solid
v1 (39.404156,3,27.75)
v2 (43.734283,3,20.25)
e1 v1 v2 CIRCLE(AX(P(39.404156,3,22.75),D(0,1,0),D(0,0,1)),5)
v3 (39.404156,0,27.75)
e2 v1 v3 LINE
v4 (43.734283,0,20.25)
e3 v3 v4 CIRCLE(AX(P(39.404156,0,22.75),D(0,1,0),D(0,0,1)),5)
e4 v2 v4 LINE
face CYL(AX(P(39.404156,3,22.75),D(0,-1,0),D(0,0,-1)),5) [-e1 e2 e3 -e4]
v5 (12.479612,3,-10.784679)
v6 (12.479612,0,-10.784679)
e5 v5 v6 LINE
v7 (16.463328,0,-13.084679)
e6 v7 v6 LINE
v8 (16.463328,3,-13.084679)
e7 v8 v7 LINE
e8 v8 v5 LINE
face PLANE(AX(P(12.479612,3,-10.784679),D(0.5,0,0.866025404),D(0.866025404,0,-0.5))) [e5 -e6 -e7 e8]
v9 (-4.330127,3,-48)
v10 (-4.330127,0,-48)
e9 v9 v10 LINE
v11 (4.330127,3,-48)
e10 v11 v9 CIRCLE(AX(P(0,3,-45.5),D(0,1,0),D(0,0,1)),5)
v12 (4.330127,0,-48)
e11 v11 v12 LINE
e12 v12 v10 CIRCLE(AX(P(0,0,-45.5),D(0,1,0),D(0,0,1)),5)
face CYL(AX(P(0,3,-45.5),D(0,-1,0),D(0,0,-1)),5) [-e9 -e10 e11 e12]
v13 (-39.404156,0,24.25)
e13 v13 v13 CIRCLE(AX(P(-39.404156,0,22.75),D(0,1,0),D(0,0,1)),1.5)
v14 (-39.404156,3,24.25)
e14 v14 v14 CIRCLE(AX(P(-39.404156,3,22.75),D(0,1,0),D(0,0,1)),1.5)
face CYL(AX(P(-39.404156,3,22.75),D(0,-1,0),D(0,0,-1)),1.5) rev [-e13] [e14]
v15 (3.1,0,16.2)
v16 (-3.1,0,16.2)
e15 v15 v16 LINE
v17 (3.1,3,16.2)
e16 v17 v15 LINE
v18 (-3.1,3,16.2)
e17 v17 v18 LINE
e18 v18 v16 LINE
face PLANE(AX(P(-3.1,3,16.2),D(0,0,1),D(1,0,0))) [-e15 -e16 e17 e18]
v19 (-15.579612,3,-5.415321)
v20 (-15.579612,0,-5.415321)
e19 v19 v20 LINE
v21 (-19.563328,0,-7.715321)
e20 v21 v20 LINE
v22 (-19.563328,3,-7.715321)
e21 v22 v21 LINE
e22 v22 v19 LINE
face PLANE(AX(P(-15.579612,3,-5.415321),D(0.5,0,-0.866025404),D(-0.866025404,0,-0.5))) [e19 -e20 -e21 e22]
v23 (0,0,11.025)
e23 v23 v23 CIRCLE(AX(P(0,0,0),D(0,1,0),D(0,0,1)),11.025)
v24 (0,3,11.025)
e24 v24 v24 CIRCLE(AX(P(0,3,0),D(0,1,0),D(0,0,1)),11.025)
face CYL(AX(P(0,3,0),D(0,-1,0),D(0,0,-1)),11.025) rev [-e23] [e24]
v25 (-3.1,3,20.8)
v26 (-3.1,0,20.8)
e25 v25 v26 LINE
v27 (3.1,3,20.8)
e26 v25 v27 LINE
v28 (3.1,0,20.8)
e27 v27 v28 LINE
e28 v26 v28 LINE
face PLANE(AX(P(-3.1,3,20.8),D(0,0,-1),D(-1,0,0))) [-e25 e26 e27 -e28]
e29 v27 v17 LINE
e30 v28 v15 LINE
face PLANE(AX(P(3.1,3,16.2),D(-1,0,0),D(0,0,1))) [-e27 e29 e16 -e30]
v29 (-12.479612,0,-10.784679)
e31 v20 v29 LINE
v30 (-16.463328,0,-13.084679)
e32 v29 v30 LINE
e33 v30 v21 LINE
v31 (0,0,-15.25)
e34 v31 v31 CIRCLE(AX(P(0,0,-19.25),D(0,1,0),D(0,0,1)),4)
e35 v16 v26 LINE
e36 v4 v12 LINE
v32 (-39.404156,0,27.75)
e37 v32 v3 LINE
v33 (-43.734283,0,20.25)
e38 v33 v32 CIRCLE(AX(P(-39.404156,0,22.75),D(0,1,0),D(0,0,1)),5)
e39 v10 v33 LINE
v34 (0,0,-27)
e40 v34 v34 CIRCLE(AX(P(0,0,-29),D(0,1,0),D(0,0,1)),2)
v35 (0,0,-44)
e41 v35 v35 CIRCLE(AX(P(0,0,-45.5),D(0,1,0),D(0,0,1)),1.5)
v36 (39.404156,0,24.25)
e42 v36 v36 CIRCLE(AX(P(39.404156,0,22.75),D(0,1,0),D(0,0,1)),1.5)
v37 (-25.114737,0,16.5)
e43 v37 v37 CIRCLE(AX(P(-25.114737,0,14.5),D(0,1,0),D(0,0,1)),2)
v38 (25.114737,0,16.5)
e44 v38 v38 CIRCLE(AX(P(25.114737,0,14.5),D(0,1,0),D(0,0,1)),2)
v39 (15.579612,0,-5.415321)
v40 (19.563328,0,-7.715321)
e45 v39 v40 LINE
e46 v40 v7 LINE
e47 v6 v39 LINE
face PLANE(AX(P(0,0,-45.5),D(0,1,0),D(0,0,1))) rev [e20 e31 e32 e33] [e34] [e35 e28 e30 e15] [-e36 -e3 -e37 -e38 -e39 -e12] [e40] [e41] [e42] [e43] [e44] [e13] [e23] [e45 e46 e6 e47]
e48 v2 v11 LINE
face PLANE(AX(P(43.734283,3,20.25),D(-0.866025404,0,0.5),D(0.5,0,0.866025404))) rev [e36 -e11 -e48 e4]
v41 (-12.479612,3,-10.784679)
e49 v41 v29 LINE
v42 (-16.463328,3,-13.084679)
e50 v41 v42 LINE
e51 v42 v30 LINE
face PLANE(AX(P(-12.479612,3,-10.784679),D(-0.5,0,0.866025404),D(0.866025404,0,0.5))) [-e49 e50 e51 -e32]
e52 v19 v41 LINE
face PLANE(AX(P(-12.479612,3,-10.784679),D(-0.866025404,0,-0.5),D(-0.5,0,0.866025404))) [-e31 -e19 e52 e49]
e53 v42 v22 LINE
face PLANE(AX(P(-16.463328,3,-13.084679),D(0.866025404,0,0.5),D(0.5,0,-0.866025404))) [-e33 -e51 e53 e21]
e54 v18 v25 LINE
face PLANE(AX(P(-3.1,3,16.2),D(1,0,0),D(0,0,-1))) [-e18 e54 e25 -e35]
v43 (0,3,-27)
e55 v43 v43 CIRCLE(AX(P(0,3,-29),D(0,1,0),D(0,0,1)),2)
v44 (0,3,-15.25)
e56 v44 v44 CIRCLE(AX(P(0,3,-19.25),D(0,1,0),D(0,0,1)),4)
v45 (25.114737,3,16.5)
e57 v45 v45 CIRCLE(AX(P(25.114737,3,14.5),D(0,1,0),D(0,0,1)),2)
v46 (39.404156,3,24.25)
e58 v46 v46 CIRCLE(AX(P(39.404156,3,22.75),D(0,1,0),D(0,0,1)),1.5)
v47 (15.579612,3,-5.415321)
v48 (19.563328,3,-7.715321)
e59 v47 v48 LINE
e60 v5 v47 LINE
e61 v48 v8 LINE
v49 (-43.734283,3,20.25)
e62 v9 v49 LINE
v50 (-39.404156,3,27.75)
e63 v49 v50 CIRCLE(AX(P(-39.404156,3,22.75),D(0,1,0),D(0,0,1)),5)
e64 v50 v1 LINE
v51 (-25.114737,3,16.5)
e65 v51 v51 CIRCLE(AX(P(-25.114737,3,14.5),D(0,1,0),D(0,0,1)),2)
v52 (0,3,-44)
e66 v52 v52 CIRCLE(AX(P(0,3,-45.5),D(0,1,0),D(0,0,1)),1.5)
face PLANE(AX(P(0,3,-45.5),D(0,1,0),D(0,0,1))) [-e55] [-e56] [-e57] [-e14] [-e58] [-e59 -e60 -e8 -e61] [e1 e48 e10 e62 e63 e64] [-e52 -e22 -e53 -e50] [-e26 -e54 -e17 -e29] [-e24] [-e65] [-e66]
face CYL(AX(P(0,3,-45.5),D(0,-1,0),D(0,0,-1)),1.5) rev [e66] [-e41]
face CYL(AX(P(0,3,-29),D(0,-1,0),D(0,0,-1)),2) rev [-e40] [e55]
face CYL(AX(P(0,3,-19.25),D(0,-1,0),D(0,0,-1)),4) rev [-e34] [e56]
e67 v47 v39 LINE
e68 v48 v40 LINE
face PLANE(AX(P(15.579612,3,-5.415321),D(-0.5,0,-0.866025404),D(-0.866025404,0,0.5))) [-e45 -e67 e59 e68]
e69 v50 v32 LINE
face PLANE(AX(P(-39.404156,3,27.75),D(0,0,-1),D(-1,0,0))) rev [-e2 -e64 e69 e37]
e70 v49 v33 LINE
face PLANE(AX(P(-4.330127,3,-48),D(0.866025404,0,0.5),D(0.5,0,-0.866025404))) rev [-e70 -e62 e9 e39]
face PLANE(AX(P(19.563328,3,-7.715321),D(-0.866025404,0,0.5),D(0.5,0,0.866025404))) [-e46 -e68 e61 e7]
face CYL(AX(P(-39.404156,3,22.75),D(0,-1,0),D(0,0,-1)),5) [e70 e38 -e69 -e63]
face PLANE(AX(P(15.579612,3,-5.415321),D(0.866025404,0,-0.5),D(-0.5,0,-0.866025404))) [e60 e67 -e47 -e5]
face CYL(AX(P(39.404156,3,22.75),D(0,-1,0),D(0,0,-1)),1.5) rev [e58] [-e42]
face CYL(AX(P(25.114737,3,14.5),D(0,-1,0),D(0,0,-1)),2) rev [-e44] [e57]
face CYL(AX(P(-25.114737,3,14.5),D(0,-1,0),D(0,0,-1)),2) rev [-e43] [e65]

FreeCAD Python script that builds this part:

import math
import FreeCAD as App
import Part
import Sketcher
Q = App.Units.Quantity

doc = App.newDocument("Part")
body = doc.addObject("PartDesign::Body", "Body")

sketch1 = body.newObject("Sketcher::SketchObject", "Sketch")
sketch1.AttachmentSupport = (doc.getObject("XZ_Plane"), [""])
sketch1.MapMode = "FlatFace"
sketch1.addGeometry(Part.LineSegment(App.Vector(-4.3, -48, 0), App.Vector(-43.7, 20.2, 0)), False)
sketch1.addGeometry(Part.ArcOfCircle(Part.Circle(App.Vector(-39.4, 22.8, 0), App.Vector(0, 0, 1), 5), math.radians(90), math.radians(210)), False)
sketch1.addGeometry(Part.LineSegment(App.Vector(-39.4, 27.8, 0), App.Vector(39.4, 27.8, 0)), False)
sketch1.addGeometry(Part.ArcOfCircle(Part.Circle(App.Vector(39.4, 22.8, 0), App.Vector(0, 0, 1), 5), math.radians(-30), math.radians(90)), False)
sketch1.addGeometry(Part.LineSegment(App.Vector(43.7, 20.2, 0), App.Vector(4.3, -48, 0)), False)
sketch1.addGeometry(Part.ArcOfCircle(Part.Circle(App.Vector(0, -45.5, 0), App.Vector(0, 0, 1), 5), math.radians(-150), math.radians(-30)), False)
sketch1.addGeometry(Part.Circle(App.Vector(-39.4, 22.8, 0), App.Vector(0, 0, 1), 1.5), False)
sketch1.addGeometry(Part.Circle(App.Vector(-25.1, 14.5, 0), App.Vector(0, 0, 1), 2), False)
sketch1.addGeometry(Part.LineSegment(App.Vector(-16.5, -13.1, 0), App.Vector(-12.5, -10.8, 0)), False)
sketch1.addGeometry(Part.LineSegment(App.Vector(-12.5, -10.8, 0), App.Vector(-15.6, -5.4, 0)), False)
sketch1.addGeometry(Part.LineSegment(App.Vector(-15.6, -5.4, 0), App.Vector(-19.6, -7.7, 0)), False)
sketch1.addGeometry(Part.LineSegment(App.Vector(-19.6, -7.7, 0), App.Vector(-16.5, -13.1, 0)), False)
sketch1.addGeometry(Part.LineSegment(App.Vector(3.1, 20.8, 0), App.Vector(-3.1, 20.8, 0)), False)
sketch1.addGeometry(Part.LineSegment(App.Vector(-3.1, 20.8, 0), App.Vector(-3.1, 16.2, 0)), False)
sketch1.addGeometry(Part.LineSegment(App.Vector(-3.1, 16.2, 0), App.Vector(3.1, 16.2, 0)), False)
sketch1.addGeometry(Part.LineSegment(App.Vector(3.1, 16.2, 0), App.Vector(3.1, 20.8, 0)), False)
sketch1.addGeometry(Part.Circle(App.Vector(39.4, 22.8, 0), App.Vector(0, 0, 1), 1.5), False)
sketch1.addGeometry(Part.Circle(App.Vector(25.1, 14.5, 0), App.Vector(0, 0, 1), 2), False)
sketch1.addGeometry(Part.Circle(App.Vector(0, 0, 0), App.Vector(0, 0, 1), 11), False)
sketch1.addGeometry(Part.LineSegment(App.Vector(19.6, -7.7, 0), App.Vector(15.6, -5.4, 0)), False)
sketch1.addGeometry(Part.LineSegment(App.Vector(15.6, -5.4, 0), App.Vector(12.5, -10.8, 0)), False)
sketch1.addGeometry(Part.LineSegment(App.Vector(12.5, -10.8, 0), App.Vector(16.5, -13.1, 0)), False)
sketch1.addGeometry(Part.LineSegment(App.Vector(16.5, -13.1, 0), App.Vector(19.6, -7.7, 0)), False)
sketch1.addGeometry(Part.Circle(App.Vector(0, -19.2, 0), App.Vector(0, 0, 1), 4), False)
sketch1.addGeometry(Part.Circle(App.Vector(0, -29, 0), App.Vector(0, 0, 1), 2), False)
sketch1.addGeometry(Part.Circle(App.Vector(0, -45.5, 0), App.Vector(0, 0, 1), 1.5), False)
sketch1.addConstraint(Sketcher.Constraint("Tangent", 0, 2, 1, 2))
sketch1.addConstraint(Sketcher.Constraint("Tangent", 1, 1, 2, 1))
sketch1.addConstraint(Sketcher.Constraint("Tangent", 2, 2, 3, 2))
sketch1.addConstraint(Sketcher.Constraint("Tangent", 3, 1, 4, 1))
sketch1.addConstraint(Sketcher.Constraint("Tangent", 4, 2, 5, 2))
sketch1.addConstraint(Sketcher.Constraint("Tangent", 5, 1, 0, 1))
sketch1.addConstraint(Sketcher.Constraint("Coincident", 8, 2, 9, 1))
sketch1.addConstraint(Sketcher.Constraint("Coincident", 9, 2, 10, 1))
sketch1.addConstraint(Sketcher.Constraint("Coincident", 10, 2, 11, 1))
sketch1.addConstraint(Sketcher.Constraint("Coincident", 11, 2, 8, 1))
sketch1.addConstraint(Sketcher.Constraint("Coincident", 12, 2, 13, 1))
sketch1.addConstraint(Sketcher.Constraint("Coincident", 13, 2, 14, 1))
sketch1.addConstraint(Sketcher.Constraint("Coincident", 14, 2, 15, 1))
sketch1.addConstraint(Sketcher.Constraint("Coincident", 15, 2, 12, 1))
sketch1.addConstraint(Sketcher.Constraint("Coincident", 19, 2, 20, 1))
sketch1.addConstraint(Sketcher.Constraint("Coincident", 20, 2, 21, 1))
sketch1.addConstraint(Sketcher.Constraint("Coincident", 21, 2, 22, 1))
sketch1.addConstraint(Sketcher.Constraint("Coincident", 22, 2, 19, 1))
sketch1.addConstraint(Sketcher.Constraint("Horizontal", 2))
sketch1.addConstraint(Sketcher.Constraint("Horizontal", 12))
sketch1.addConstraint(Sketcher.Constraint("Vertical", 13))
sketch1.addConstraint(Sketcher.Constraint("Horizontal", 14))
sketch1.addConstraint(Sketcher.Constraint("Vertical", 15))
sketch1.addConstraint(Sketcher.Constraint("Coincident", 18, 3, -1, 1))
sketch1.addConstraint(Sketcher.Constraint("Coincident", 6, 3, 1, 3))
sketch1.addConstraint(Sketcher.Constraint("Coincident", 16, 3, 3, 3))
sketch1.addConstraint(Sketcher.Constraint("Coincident", 25, 3, 5, 3))
sketch1.addConstraint(Sketcher.Constraint("Equal", 1, 3))
sketch1.addConstraint(Sketcher.Constraint("Equal", 3, 5))
sketch1.addConstraint(Sketcher.Constraint("Equal", 6, 16))
sketch1.addConstraint(Sketcher.Constraint("Equal", 7, 17))
sketch1.addConstraint(Sketcher.Constraint("Equal", 17, 24))
sketch1.addConstraint(Sketcher.Constraint("Equal", 16, 25))
sketch1.addConstraint(Sketcher.Constraint("Symmetric", 7, 3, 17, 3, -2))
sketch1.addConstraint(Sketcher.Constraint("Symmetric", 0, 2, 3, 1, -2))
sketch1.addConstraint(Sketcher.Constraint("Symmetric", 9, 2, 19, 2, -2))
sketch1.addConstraint(Sketcher.Constraint("Symmetric", 8, 2, 20, 2, -2))
sketch1.addConstraint(Sketcher.Constraint("Symmetric", 11, 2, 21, 2, -2))
sketch1.addConstraint(Sketcher.Constraint("Symmetric", 10, 2, 22, 2, -2))
sketch1.addConstraint(Sketcher.Constraint("PointOnObject", 23, 3, -2))
sketch1.addConstraint(Sketcher.Constraint("PointOnObject", 24, 3, -2))
sketch1.addConstraint(Sketcher.Constraint("Perpendicular", 0, 8))
sketch1.addConstraint(Sketcher.Constraint("Perpendicular", 8, 9))
sketch1.addConstraint(Sketcher.Constraint("Perpendicular", 9, 10))
sketch1.addConstraint(Sketcher.Constraint("Perpendicular", 10, 11))
sketch1.addConstraint(Sketcher.Constraint("Diameter", 6, Q("3 mm")))
sketch1.addConstraint(Sketcher.Constraint("Diameter", 7, Q("4 mm")))
sketch1.addConstraint(Sketcher.Constraint("Diameter", 23, Q("8 mm")))
sketch1.addConstraint(Sketcher.Constraint("Radius", 1, Q("5 mm")))
sketch1.addConstraint(Sketcher.Constraint("Diameter", 18, Q("22.05 mm")))
sketch1.addConstraint(Sketcher.Constraint("Angle", 0, Q("120 deg")))
sketch1.addConstraint(Sketcher.Constraint("DistanceX", 12, 2, 12, 1, Q("6.2 mm")))
sketch1.addConstraint(Sketcher.Constraint("DistanceY", 13, 2, 13, 1, Q("4.6 mm")))
sketch1.addConstraint(Sketcher.Constraint("DistanceY", 24, 3, -1, 1, Q("29 mm")))
sketch1.addConstraint(Sketcher.Constraint("DistanceY", 4, 2, -1, 1, Q("48 mm")))
sketch1.addConstraint(Sketcher.Constraint("DistanceY", 5, 3, 7, 3, Q("60 mm")))
sketch1.addConstraint(Sketcher.Constraint("DistanceY", 23, 3, 1, 3, Q("42 mm")))
sketch1.addConstraint(Sketcher.Constraint("Distance", 8, Q("4.6 mm")))
sketch1.addConstraint(Sketcher.Constraint("Distance", 9, Q("6.2 mm")))
sketch1.addConstraint(Sketcher.Constraint("DistanceX", 12, 2, -1, 1, Q("3.1 mm")))
sketch1.addConstraint(Sketcher.Constraint("DistanceY", -1, 1, 12, 2, Q("20.8 mm")))
sketch1.addConstraint(Sketcher.Constraint("DistanceY", -1, 1, 1, 3, Q("22.75 mm")))
sketch1.addConstraint(Sketcher.Constraint("DistanceX", 8, 2, -1, 1, Q("12.479612 mm")))
sketch1.addConstraint(Sketcher.Constraint("DistanceY", 8, 2, -1, 1, Q("10.784679 mm")))
sketch1.addConstraint(Sketcher.Constraint("DistanceX", 1, 3, 7, 3, Q("14.289419 mm")))
pad1 = body.newObject("PartDesign::Pad", "Pad")
pad1.Profile = sketch1
pad1.Length = 3
pad1.Reversed = True

doc.recompute()
